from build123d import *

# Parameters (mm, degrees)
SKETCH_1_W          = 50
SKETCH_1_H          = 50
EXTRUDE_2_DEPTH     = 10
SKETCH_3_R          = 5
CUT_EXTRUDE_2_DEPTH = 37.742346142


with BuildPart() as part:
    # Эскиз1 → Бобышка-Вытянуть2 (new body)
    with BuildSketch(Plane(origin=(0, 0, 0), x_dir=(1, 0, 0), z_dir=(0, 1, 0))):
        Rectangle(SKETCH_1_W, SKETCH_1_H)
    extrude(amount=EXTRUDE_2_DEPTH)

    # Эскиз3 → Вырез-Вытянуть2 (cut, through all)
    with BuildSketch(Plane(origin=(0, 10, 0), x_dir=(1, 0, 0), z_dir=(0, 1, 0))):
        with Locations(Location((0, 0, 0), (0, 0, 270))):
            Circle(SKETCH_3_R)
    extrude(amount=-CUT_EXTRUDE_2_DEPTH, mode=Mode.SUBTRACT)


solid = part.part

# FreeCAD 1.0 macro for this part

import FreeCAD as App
import Part
import Sketcher
from FreeCAD import Vector


def add_polygon(sketch, points):
    """Adds a closed chain of lines whose ends are joined by coincident constraints."""
    first, n = sketch.GeometryCount, len(points)
    for a, b in zip(points, points[1:] + points[:1]):
        sketch.addGeometry(Part.LineSegment(App.Vector(*a, 0), App.Vector(*b, 0)), False)
    for i in range(n):
        sketch.addConstraint(Sketcher.Constraint("Coincident", first + i, 2, first + (i + 1) % n, 1))

doc = App.newDocument("Part")
body = doc.addObject("PartDesign::Body", "Body")

# Sketch on XZ plane
sketch1 = body.newObject("Sketcher::SketchObject", "Sketch")
sketch1.AttachmentSupport = (doc.getObject("XZ_Plane"), [""])
sketch1.MapMode = "FlatFace"
add_polygon(sketch1, [(-25, -25), (-25, 25), (25, 25), (25, -25)])  # lines 0-3
sketch1.addConstraint([
    Sketcher.Constraint("Vertical", 0),
    Sketcher.Constraint("Horizontal", 1),
    Sketcher.Constraint("Vertical", 2),
    Sketcher.Constraint("Horizontal", 3),
    Sketcher.Constraint("Symmetric", 0, 2, 2, 2, -1, 1),
    Sketcher.Constraint("Equal", 3, 0),
    Sketcher.Constraint("DistanceX", 1, 1, 1, 2, 50.0),
])
pad1 = body.newObject("PartDesign::Pad", "Pad")
pad1.Profile = sketch1
pad1.Length = 10
pad1.Reversed = True

# Sketch on XZ plane
sketch2 = body.newObject("Sketcher::SketchObject", "Sketch001")
sketch2.AttachmentSupport = (doc.getObject("XZ_Plane"), [""])
sketch2.MapMode = "FlatFace"
sketch2.AttachmentOffset = App.Placement(Vector(0, 0, -10), App.Rotation())
sketch2.addGeometry(Part.Circle(Vector(0, 0, 0), Vector(0, 0, 1), 5), False)
sketch2.addConstraint([
    Sketcher.Constraint("Coincident", 0, 3, -1, 1),
    Sketcher.Constraint("Diameter", 0, 10.0),
])
pocket1 = body.newObject("PartDesign::Pocket", "Pocket")
pocket1.Profile = sketch2
pocket1.Type = "ThroughAll"
pocket1.Reversed = True

doc.recompute()
